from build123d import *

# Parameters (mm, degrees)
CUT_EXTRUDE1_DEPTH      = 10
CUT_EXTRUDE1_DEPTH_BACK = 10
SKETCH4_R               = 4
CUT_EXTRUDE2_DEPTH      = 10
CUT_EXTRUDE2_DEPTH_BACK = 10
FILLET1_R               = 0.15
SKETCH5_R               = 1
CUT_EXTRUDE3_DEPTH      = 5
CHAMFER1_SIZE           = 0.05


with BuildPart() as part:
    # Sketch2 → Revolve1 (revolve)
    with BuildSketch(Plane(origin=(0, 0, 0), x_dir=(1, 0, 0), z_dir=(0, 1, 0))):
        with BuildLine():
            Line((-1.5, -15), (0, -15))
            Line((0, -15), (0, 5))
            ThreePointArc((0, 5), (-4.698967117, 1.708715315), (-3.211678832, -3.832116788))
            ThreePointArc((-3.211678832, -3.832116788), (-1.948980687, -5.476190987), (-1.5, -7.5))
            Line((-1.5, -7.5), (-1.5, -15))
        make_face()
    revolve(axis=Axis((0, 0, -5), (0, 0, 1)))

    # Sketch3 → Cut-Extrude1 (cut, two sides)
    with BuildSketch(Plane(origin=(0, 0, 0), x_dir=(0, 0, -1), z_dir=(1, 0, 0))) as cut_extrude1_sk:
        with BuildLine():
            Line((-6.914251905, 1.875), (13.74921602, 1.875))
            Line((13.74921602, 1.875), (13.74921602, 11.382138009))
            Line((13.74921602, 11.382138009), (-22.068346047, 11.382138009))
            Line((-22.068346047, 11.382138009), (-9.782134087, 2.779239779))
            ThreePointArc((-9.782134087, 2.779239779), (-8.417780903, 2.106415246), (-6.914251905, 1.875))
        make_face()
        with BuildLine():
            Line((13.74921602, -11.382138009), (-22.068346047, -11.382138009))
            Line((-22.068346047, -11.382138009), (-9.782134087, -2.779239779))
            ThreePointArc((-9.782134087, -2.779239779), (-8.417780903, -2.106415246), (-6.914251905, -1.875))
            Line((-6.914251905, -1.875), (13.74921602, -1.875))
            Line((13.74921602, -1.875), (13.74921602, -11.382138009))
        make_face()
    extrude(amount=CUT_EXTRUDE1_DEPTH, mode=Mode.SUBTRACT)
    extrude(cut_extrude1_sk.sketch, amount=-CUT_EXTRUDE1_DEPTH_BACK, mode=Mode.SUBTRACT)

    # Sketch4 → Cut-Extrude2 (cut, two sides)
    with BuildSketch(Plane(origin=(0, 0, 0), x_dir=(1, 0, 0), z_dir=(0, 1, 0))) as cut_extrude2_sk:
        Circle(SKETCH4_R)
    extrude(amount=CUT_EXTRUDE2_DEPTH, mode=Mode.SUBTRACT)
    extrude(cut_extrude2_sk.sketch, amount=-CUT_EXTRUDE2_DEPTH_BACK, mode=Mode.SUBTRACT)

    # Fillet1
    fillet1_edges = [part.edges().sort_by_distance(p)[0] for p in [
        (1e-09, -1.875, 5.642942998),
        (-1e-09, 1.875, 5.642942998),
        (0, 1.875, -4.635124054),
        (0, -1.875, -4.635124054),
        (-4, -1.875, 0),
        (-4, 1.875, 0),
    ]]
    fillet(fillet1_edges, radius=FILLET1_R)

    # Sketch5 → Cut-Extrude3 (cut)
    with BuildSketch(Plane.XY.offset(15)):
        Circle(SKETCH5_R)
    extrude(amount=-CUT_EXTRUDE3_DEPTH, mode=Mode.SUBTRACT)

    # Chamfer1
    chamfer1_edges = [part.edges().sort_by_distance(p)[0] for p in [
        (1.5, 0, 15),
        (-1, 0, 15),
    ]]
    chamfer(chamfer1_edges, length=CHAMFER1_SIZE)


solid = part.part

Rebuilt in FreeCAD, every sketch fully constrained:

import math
import FreeCAD as App
import Part
import Sketcher
from FreeCAD import Vector
Q = App.Units.Quantity


def edges_at(feature, points):
    """Names of the edges that pass closest to the given points."""
    edges = feature.Shape.Edges
    near = lambda p: min(range(len(edges)), key=lambda i: edges[i].distToShape(Part.Vertex(*p))[0])
    return sorted({f"Edge{near(p) + 1}" for p in points})

doc = App.newDocument("Part")
body = doc.addObject("PartDesign::Body", "Body")

# Sketch on XZ plane
sketch1 = body.newObject("Sketcher::SketchObject", "Sketch")
sketch1.AttachmentSupport = (doc.getObject("XZ_Plane"), [""])
sketch1.MapMode = "FlatFace"
sketch1.addGeometry(Part.LineSegment(Vector(-1.5, 15, 0), Vector(0, 15, 0)), False)
sketch1.addGeometry(Part.LineSegment(Vector(0, 15, 0), Vector(0, -5, 0)), False)
sketch1.addGeometry(Part.ArcOfCircle(Part.Circle(Vector(0, 0, 0), Vector(0, 0, 1), 5), math.radians(130), math.radians(270)), False)
sketch1.addGeometry(Part.ArcOfCircle(Part.Circle(Vector(-6.3, 7.5, 0), Vector(0, 0, 1), 4.8), math.radians(-50), math.radians(0)), False)
sketch1.addGeometry(Part.LineSegment(Vector(-1.5, 7.5, 0), Vector(-1.5, 15, 0)), False)
sketch1.addConstraint(Sketcher.Constraint("Coincident", 0, 2, 1, 1))
sketch1.addConstraint(Sketcher.Constraint("Coincident", 1, 2, 2, 2))
sketch1.addConstraint(Sketcher.Constraint("Tangent", 2, 1, 3, 1))
sketch1.addConstraint(Sketcher.Constraint("Tangent", 3, 2, 4, 1))
sketch1.addConstraint(Sketcher.Constraint("Coincident", 4, 2, 0, 1))
sketch1.addConstraint(Sketcher.Constraint("Horizontal", 0))
sketch1.addConstraint(Sketcher.Constraint("Vertical", 1))
sketch1.addConstraint(Sketcher.Constraint("Vertical", 4))
sketch1.addConstraint(Sketcher.Constraint("Coincident", 2, 3, -1, 1))
sketch1.addConstraint(Sketcher.Constraint("PointOnObject", 0, 2, -2))
sketch1.addConstraint(Sketcher.Constraint("Radius", 2, 5.0))
sketch1.addConstraint(Sketcher.Constraint("DistanceY", 1, 2, 1, 1, 20.0))
sketch1.addConstraint(Sketcher.Constraint("DistanceX", 0, 1, 0, 2, 1.5))
sketch1.addConstraint(Sketcher.Constraint("DistanceY", 4, 1, 4, 2, 7.5))
revolution = body.newObject("PartDesign::Revolution", "Revolution")
revolution.Profile = sketch1
revolution.ReferenceAxis = (sketch1, ["V_Axis"])
revolution.Angle = 360

# Sketch on YZ plane
sketch2 = body.newObject("Sketcher::SketchObject", "Sketch001")
sketch2.AttachmentSupport = (doc.getObject("YZ_Plane"), [""])
sketch2.MapMode = "FlatFace"
sketch2.addGeometry(Part.LineSegment(Vector(1.9, 6.9, 0), Vector(1.9, -13.7, 0)), False)
sketch2.addGeometry(Part.LineSegment(Vector(1.9, -13.7, 0), Vector(11.4, -13.7, 0)), False)
sketch2.addGeometry(Part.LineSegment(Vector(11.4, -13.7, 0), Vector(11.4, 22.1, 0)), False)
sketch2.addGeometry(Part.LineSegment(Vector(11.4, 22.1, 0), Vector(2.8, 9.8, 0)), False)
sketch2.addGeometry(Part.ArcOfCircle(Part.Circle(Vector(6.9, 6.9, 0), Vector(0, 0, 1), 5), math.radians(145), math.radians(180)), False)
sketch2.addGeometry(Part.LineSegment(Vector(-11.4, 22.1, 0), Vector(-11.4, -13.7, 0)), False)
sketch2.addGeometry(Part.LineSegment(Vector(-11.4, -13.7, 0), Vector(-1.9, -13.7, 0)), False)
sketch2.addGeometry(Part.LineSegment(Vector(-1.9, -13.7, 0), Vector(-1.9, 6.9, 0)), False)
sketch2.addGeometry(Part.ArcOfCircle(Part.Circle(Vector(-6.9, 6.9, 0), Vector(0, 0, 1), 5), math.radians(0), math.radians(35)), False)
sketch2.addGeometry(Part.LineSegment(Vector(-2.8, 9.8, 0), Vector(-11.4, 22.1, 0)), False)
sketch2.addConstraint(Sketcher.Constraint("Coincident", 0, 2, 1, 1))
sketch2.addConstraint(Sketcher.Constraint("Coincident", 1, 2, 2, 1))
sketch2.addConstraint(Sketcher.Constraint("Coincident", 2, 2, 3, 1))
sketch2.addConstraint(Sketcher.Constraint("Tangent", 3, 2, 4, 1))
sketch2.addConstraint(Sketcher.Constraint("Tangent", 4, 2, 0, 1))
sketch2.addConstraint(Sketcher.Constraint("Coincident", 5, 2, 6, 1))
sketch2.addConstraint(Sketcher.Constraint("Coincident", 6, 2, 7, 1))
sketch2.addConstraint(Sketcher.Constraint("Tangent", 7, 2, 8, 1))
sketch2.addConstraint(Sketcher.Constraint("Tangent", 8, 2, 9, 1))
sketch2.addConstraint(Sketcher.Constraint("Coincident", 9, 2, 5, 1))
sketch2.addConstraint(Sketcher.Constraint("Vertical", 0))
sketch2.addConstraint(Sketcher.Constraint("Horizontal", 1))
sketch2.addConstraint(Sketcher.Constraint("Vertical", 2))
sketch2.addConstraint(Sketcher.Constraint("Vertical", 5))
sketch2.addConstraint(Sketcher.Constraint("Horizontal", 6))
sketch2.addConstraint(Sketcher.Constraint("Vertical", 7))
sketch2.addConstraint(Sketcher.Constraint("Equal", 4, 8))
sketch2.addConstraint(Sketcher.Constraint("Symmetric", 4, 3, 8, 3, -2))
sketch2.addConstraint(Sketcher.Constraint("Symmetric", 1, 2, 5, 2, -2))
sketch2.addConstraint(Sketcher.Constraint("Horizontal", 3, 2, 8, 2))
sketch2.addConstraint(Sketcher.Constraint("Radius", 4, 5.0))
sketch2.addConstraint(Sketcher.Constraint("Angle", 3, Q("-125 deg")))
sketch2.addConstraint(Sketcher.Constraint("DistanceX", 8, 3, 4, 3, 13.75))
sketch2.addConstraint(Sketcher.Constraint("DistanceX", 1, 1, 1, 2, 9.507138))
sketch2.addConstraint(Sketcher.Constraint("DistanceY", 0, 2, 0, 1, 20.663468))
sketch2.addConstraint(Sketcher.Constraint("DistanceY", -1, 1, 4, 3, 6.914252))
pocket1 = body.newObject("PartDesign::Pocket", "Pocket")
pocket1.Profile = sketch2
pocket1.Type = "ThroughAll"
pocket1.Midplane = True

# Sketch on XZ plane
sketch3 = body.newObject("Sketcher::SketchObject", "Sketch002")
sketch3.AttachmentSupport = (doc.getObject("XZ_Plane"), [""])
sketch3.MapMode = "FlatFace"
sketch3.addGeometry(Part.Circle(Vector(0, 0, 0), Vector(0, 0, 1), 4), False)
sketch3.addConstraint(Sketcher.Constraint("Coincident", 0, 3, -1, 1))
sketch3.addConstraint(Sketcher.Constraint("Diameter", 0, 8.0))
pocket2 = body.newObject("PartDesign::Pocket", "Pocket001")
pocket2.Profile = sketch3
pocket2.Type = "ThroughAll"
pocket2.Midplane = True
doc.recompute()

fillet = body.newObject("PartDesign::Fillet", "Fillet")
fillet.Base = (pocket2, edges_at(pocket2, [
    (1.352, -1.875, 4.834),
    (-1.352, 1.875, 4.834),
    (0, 1.875, -4.635),
    (0, -1.875, -4.635),
    (-4, -1.875, 0),
    (-4, 1.875, 0),
]))
fillet.Radius = 0.15

# Sketch on XY plane
sketch4 = body.newObject("Sketcher::SketchObject", "Sketch003")
sketch4.AttachmentSupport = (doc.getObject("XY_Plane"), [""])
sketch4.MapMode = "FlatFace"
sketch4.AttachmentOffset = App.Placement(Vector(0, 0, 15), App.Rotation())
sketch4.addGeometry(Part.Circle(Vector(0, 0, 0), Vector(0, 0, 1), 1), False)
sketch4.addConstraint(Sketcher.Constraint("Coincident", 0, 3, -1, 1))
sketch4.addConstraint(Sketcher.Constraint("Diameter", 0, 2.0))
pocket3 = body.newObject("PartDesign::Pocket", "Pocket002")
pocket3.Profile = sketch4
pocket3.Length = 5
doc.recompute()

chamfer = body.newObject("PartDesign::Chamfer", "Chamfer")
chamfer.Base = (pocket3, edges_at(pocket3, [(1.5, 0, 15), (-1, 0, 15)]))
chamfer.Size = 0.05

doc.recompute()
